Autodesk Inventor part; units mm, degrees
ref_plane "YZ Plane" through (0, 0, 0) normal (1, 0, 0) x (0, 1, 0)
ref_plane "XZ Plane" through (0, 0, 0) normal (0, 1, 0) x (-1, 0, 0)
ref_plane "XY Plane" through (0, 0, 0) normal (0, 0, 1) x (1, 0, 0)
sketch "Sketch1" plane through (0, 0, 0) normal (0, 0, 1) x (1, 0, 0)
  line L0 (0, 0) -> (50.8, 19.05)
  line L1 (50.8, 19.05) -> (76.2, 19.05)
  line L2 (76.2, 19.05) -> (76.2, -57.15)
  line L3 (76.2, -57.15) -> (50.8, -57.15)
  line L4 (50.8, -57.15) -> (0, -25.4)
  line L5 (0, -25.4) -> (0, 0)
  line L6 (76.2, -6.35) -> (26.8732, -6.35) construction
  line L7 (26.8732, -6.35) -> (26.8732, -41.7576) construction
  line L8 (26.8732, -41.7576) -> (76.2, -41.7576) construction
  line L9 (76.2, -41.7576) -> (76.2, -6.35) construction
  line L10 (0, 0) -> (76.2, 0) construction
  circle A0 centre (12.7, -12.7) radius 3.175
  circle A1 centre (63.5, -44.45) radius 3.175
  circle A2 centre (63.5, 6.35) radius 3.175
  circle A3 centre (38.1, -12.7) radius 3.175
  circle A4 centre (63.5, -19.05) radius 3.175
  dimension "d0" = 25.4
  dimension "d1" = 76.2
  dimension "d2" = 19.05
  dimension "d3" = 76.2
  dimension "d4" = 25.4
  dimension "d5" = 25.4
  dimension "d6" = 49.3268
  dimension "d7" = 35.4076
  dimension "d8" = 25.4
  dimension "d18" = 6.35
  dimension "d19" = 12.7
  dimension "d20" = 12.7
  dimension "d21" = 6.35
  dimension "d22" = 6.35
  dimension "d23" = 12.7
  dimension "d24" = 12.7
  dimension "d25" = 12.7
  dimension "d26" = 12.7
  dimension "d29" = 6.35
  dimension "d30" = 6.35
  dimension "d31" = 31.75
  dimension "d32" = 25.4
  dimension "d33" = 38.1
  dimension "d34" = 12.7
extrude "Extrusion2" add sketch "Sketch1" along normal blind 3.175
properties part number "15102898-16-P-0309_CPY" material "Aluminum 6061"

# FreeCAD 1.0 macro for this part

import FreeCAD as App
import Part
import Sketcher
from FreeCAD import Vector
Q = App.Units.Quantity

doc = App.newDocument("Part")
body = doc.addObject("PartDesign::Body", "Body")

# Sketch on XY plane
sketch1 = doc.addObject("Sketcher::SketchObject", "Sketch")
body.addObject(sketch1)
sketch1.AttachmentSupport = (doc.XY_Plane, [""])
sketch1.MapMode = "FlatFace"
sketch1.addGeometry(Part.LineSegment(Vector(50.8, 19.1, 0), Vector(0, 0, 0)), False)
sketch1.addGeometry(Part.LineSegment(Vector(0, 0, 0), Vector(0, -25.4, 0)), False)
sketch1.addGeometry(Part.LineSegment(Vector(0, -25.4, 0), Vector(50.8, -57.1, 0)), False)
sketch1.addGeometry(Part.LineSegment(Vector(50.8, -57.1, 0), Vector(76.2, -57.1, 0)), False)
sketch1.addGeometry(Part.LineSegment(Vector(76.2, -57.1, 0), Vector(76.2, 19.1, 0)), False)
sketch1.addGeometry(Part.LineSegment(Vector(76.2, 19.1, 0), Vector(50.8, 19.1, 0)), False)
sketch1.addGeometry(Part.Circle(Vector(63.5, -44.5, 0), Vector(0, 0, 1), 3.2), False)
sketch1.addGeometry(Part.Circle(Vector(12.7, -12.7, 0), Vector(0, 0, 1), 3.2), False)
sketch1.addGeometry(Part.Circle(Vector(38.1, -12.7, 0), Vector(0, 0, 1), 3.2), False)
sketch1.addGeometry(Part.Circle(Vector(63.5, -19.1, 0), Vector(0, 0, 1), 3.2), False)
sketch1.addGeometry(Part.Circle(Vector(63.5, 6.3, 0), Vector(0, 0, 1), 3.2), False)
sketch1.addConstraint(Sketcher.Constraint("Coincident", 0, 2, 1, 1))
sketch1.addConstraint(Sketcher.Constraint("Coincident", 1, 2, 2, 1))
sketch1.addConstraint(Sketcher.Constraint("Coincident", 2, 2, 3, 1))
sketch1.addConstraint(Sketcher.Constraint("Coincident", 3, 2, 4, 1))
sketch1.addConstraint(Sketcher.Constraint("Coincident", 4, 2, 5, 1))
sketch1.addConstraint(Sketcher.Constraint("Coincident", 5, 2, 0, 1))
sketch1.addConstraint(Sketcher.Constraint("Vertical", 1))
sketch1.addConstraint(Sketcher.Constraint("Horizontal", 3))
sketch1.addConstraint(Sketcher.Constraint("Vertical", 4))
sketch1.addConstraint(Sketcher.Constraint("Horizontal", 5))
sketch1.addConstraint(Sketcher.Constraint("Coincident", 0, 2, -1, 1))
sketch1.addConstraint(Sketcher.Constraint("Equal", 6, 7))
sketch1.addConstraint(Sketcher.Constraint("Equal", 7, 8))
sketch1.addConstraint(Sketcher.Constraint("Equal", 8, 9))
sketch1.addConstraint(Sketcher.Constraint("Equal", 9, 10))
sketch1.addConstraint(Sketcher.Constraint("Horizontal", 7, 3, 8, 3))
sketch1.addConstraint(Sketcher.Constraint("Vertical", 6, 3, 9, 3))
sketch1.addConstraint(Sketcher.Constraint("Vertical", 9, 3, 10, 3))
sketch1.addConstraint(Sketcher.Constraint("Vertical", 2, 2, 5, 2))
sketch1.addConstraint(Sketcher.Constraint("Equal", 5, 1))
sketch1.addConstraint(Sketcher.Constraint("Diameter", 6, Q("0.25 in")))
sketch1.addConstraint(Sketcher.Constraint("DistanceX", 3, 1, 3, 2, Q("1 in")))
sketch1.addConstraint(Sketcher.Constraint("DistanceY", 4, 1, 4, 2, Q("3 in")))
sketch1.addConstraint(Sketcher.Constraint("DistanceX", -1, 1, 3, 2, Q("3 in")))
sketch1.addConstraint(Sketcher.Constraint("DistanceX", 7, 3, 8, 3, Q("1 in")))
sketch1.addConstraint(Sketcher.Constraint("DistanceX", 8, 3, 6, 3, Q("1 in")))
sketch1.addConstraint(Sketcher.Constraint("DistanceY", 6, 3, 9, 3, Q("1 in")))
sketch1.addConstraint(Sketcher.Constraint("DistanceY", 9, 3, 10, 3, Q("1 in")))
sketch1.addConstraint(Sketcher.Constraint("DistanceX", -1, 1, 7, 3, Q("0.5 in")))
sketch1.addConstraint(Sketcher.Constraint("DistanceY", 7, 3, -1, 1, Q("0.5 in")))
sketch1.addConstraint(Sketcher.Constraint("DistanceY", 2, 2, 6, 3, Q("0.5 in")))
sketch1.addConstraint(Sketcher.Constraint("DistanceY", 9, 3, -1, 1, Q("0.75 in")))
pad1 = doc.addObject("PartDesign::Pad", "Pad")
body.addObject(pad1)
pad1.Profile = sketch1
pad1.Length = Q("0.125 in")

doc.recompute()
